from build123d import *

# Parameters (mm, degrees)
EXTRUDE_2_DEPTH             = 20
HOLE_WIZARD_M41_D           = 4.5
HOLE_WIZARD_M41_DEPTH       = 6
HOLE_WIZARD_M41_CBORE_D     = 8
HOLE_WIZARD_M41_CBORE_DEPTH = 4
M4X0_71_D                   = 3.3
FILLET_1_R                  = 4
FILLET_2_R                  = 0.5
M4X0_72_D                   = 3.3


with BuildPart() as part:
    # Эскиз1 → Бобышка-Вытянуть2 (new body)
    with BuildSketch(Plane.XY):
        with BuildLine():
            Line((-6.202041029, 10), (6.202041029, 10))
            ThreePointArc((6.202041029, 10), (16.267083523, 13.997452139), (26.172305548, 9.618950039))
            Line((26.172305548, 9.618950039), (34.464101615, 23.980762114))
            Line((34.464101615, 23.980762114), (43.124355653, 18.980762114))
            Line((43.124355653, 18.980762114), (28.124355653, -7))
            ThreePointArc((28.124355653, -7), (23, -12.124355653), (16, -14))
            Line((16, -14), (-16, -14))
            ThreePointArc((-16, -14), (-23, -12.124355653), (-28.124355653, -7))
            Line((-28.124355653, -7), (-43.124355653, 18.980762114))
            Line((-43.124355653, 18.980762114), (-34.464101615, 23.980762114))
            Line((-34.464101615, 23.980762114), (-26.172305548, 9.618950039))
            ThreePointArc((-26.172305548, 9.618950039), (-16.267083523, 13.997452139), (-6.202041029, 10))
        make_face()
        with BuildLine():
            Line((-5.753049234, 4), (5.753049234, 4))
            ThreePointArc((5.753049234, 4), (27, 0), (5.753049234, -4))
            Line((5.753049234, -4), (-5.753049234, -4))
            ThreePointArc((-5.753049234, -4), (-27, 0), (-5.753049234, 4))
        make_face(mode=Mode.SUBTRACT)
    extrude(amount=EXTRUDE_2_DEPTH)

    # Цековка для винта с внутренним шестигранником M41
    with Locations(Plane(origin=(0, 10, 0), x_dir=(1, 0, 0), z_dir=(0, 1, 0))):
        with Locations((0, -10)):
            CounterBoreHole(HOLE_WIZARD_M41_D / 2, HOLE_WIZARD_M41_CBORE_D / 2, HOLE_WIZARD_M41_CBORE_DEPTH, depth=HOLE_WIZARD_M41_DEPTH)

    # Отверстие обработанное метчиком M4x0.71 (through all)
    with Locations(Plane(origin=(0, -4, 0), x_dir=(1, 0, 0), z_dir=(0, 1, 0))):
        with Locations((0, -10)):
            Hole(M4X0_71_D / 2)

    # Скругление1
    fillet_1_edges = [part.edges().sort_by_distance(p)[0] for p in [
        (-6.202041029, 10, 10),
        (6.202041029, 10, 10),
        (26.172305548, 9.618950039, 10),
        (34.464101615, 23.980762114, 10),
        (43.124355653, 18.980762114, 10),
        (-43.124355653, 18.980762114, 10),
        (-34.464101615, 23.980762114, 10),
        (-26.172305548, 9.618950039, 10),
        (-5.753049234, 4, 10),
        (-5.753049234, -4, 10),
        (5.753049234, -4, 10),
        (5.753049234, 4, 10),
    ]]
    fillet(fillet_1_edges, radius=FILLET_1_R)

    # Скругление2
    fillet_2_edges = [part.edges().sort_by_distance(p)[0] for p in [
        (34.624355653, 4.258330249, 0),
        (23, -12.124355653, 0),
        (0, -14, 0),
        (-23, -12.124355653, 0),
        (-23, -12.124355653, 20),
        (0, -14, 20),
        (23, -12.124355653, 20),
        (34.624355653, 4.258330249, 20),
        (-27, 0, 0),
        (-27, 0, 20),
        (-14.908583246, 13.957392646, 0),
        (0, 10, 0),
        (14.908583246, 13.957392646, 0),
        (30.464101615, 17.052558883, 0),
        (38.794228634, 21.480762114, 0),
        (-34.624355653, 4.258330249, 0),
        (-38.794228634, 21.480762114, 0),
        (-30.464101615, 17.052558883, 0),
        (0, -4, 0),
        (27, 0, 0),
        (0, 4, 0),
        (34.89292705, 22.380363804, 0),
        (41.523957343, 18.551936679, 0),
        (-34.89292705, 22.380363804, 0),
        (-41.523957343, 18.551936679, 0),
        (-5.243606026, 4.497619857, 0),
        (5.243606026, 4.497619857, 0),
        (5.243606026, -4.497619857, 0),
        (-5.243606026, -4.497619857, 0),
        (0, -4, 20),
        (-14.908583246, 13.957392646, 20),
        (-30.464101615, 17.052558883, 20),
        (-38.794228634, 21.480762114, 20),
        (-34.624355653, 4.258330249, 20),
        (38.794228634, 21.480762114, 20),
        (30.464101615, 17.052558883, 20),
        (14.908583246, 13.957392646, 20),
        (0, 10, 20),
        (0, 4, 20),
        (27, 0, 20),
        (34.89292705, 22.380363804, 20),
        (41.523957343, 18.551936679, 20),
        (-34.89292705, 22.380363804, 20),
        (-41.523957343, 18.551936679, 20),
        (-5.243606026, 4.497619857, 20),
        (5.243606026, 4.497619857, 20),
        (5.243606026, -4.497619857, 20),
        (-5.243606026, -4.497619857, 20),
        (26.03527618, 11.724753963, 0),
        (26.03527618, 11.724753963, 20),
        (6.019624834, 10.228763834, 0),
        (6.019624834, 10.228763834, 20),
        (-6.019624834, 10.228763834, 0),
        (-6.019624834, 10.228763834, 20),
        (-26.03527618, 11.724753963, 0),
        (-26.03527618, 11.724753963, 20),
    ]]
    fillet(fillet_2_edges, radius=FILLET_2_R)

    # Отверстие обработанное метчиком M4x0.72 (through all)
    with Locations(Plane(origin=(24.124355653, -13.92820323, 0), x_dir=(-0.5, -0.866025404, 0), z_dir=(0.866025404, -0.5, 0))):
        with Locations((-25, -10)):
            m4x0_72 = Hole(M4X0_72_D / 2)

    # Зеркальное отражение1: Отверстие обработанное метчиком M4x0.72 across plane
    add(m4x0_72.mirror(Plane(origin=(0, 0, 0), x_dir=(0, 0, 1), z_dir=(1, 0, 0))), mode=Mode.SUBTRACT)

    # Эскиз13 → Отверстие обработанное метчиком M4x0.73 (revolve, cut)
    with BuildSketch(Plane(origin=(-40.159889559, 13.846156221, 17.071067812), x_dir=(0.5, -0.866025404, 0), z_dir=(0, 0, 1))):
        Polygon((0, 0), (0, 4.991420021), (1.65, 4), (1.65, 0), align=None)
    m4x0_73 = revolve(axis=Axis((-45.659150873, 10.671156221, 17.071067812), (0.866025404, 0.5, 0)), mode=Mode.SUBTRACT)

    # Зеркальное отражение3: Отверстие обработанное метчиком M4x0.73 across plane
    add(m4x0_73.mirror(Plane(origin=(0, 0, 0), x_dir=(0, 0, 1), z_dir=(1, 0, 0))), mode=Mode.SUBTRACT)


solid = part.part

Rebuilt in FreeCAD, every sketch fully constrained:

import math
import FreeCAD as App
import Part
import Sketcher

V = App.Vector
Q = App.Units.Quantity


def edges_at(feature, points):
    """Names of the edges that pass closest to the given points."""
    edges = feature.Shape.Edges
    near = lambda p: min(range(len(edges)), key=lambda i: edges[i].distToShape(Part.Vertex(*p))[0])
    return sorted({f"Edge{near(p) + 1}" for p in points})

doc = App.newDocument("Part")
params = doc.addObject("Spreadsheet::Sheet", "Params")
for row, (alias, value) in enumerate([
    ("sketch1_radius", "14 mm"),
    ("sketch1_radius2", "11 mm"),
    ("sketch1_width", "32 mm"),
    ("sketch1_length", "10 mm"),
    ("sketch1_length2", "30 mm"),
    ("pad1_length", "20 mm"),
    ("sketch2_diameter", "4.5 mm"),
    ("hole_diameter", "4.5 mm"),
    ("hole_depth", "6 mm"),
    ("hole_cbore_diameter", "8 mm"),
    ("hole_cbore_depth", "4 mm"),
    ("sketch3_diameter", "3.3 mm"),
    ("hole2_diameter", "3.3 mm"),
    ("fillet_radius", "4 mm"),
    ("fillet2_radius", "0.5 mm"),
    ("sketch4_diameter", "3.3 mm"),
    ("hole3_diameter", "3.3 mm"),
    ("sketch5_length", "4 mm"),
    ("sketch5_length2", "1.65 mm"),
    ("groove_angle", "360 deg"),
], start=1):
    params.set(f"A{row}", alias)
    params.set(f"B{row}", "=" + value)
    params.setAlias(f"B{row}", alias)

body = doc.addObject("PartDesign::Body", "Body")

# Sketch on XY plane
sketch1 = body.newObject("Sketcher::SketchObject", "Sketch")
sketch1.AttachmentSupport = (doc.getObject("XY_Plane"), [""])
sketch1.MapMode = "FlatFace"
sketch1.addGeometry([
    Part.LineSegment(V(6, 10, 0), V(-6, 10, 0)),  # 0
    Part.ArcOfCircle(Part.Circle(V(-16, 0, 0), V(0, 0, 1), 14), math.radians(46), math.radians(137)),  # 1
    Part.LineSegment(V(-26, 10, 0), V(-34, 24, 0)),  # 2
    Part.LineSegment(V(-34, 24, 0), V(-43, 19, 0)),  # 3
    Part.LineSegment(V(-43, 19, 0), V(-28, -7, 0)),  # 4
    Part.ArcOfCircle(Part.Circle(V(-16, 0, 0), V(0, 0, 1), 14), math.radians(-150), math.radians(-90)),  # 5
    Part.LineSegment(V(-16, -14, 0), V(16, -14, 0)),  # 6
    Part.ArcOfCircle(Part.Circle(V(16, 0, 0), V(0, 0, 1), 14), math.radians(-90), math.radians(-30)),  # 7
    Part.LineSegment(V(28, -7, 0), V(43, 19, 0)),  # 8
    Part.LineSegment(V(43, 19, 0), V(34, 24, 0)),  # 9
    Part.LineSegment(V(34, 24, 0), V(26, 10, 0)),  # 10
    Part.ArcOfCircle(Part.Circle(V(16, 0, 0), V(0, 0, 1), 14), math.radians(43), math.radians(134)),  # 11
    Part.LineSegment(V(-6, 4, 0), V(6, 4, 0)),  # 12
    Part.ArcOfCircle(Part.Circle(V(16, 0, 0), V(0, 0, 1), 11), math.radians(-159), math.radians(159)),  # 13
    Part.LineSegment(V(6, -4, 0), V(-6, -4, 0)),  # 14
    Part.ArcOfCircle(Part.Circle(V(-16, 0, 0), V(0, 0, 1), 11), math.radians(21), math.radians(339)),  # 15
], False)
sketch1.addConstraint([
    Sketcher.Constraint("Coincident", 0, 2, 1, 1),
    Sketcher.Constraint("Coincident", 1, 2, 2, 1),
    Sketcher.Constraint("Coincident", 2, 2, 3, 1),
    Sketcher.Constraint("Coincident", 3, 2, 4, 1),
    Sketcher.Constraint("Tangent", 4, 2, 5, 1),
    Sketcher.Constraint("Tangent", 5, 2, 6, 1),
    Sketcher.Constraint("Tangent", 6, 2, 7, 1),
    Sketcher.Constraint("Tangent", 7, 2, 8, 1),
    Sketcher.Constraint("Coincident", 8, 2, 9, 1),
    Sketcher.Constraint("Coincident", 9, 2, 10, 1),
    Sketcher.Constraint("Coincident", 10, 2, 11, 1),
    Sketcher.Constraint("Coincident", 11, 2, 0, 1),
    Sketcher.Constraint("Coincident", 12, 2, 13, 2),
    Sketcher.Constraint("Coincident", 13, 1, 14, 1),
    Sketcher.Constraint("Coincident", 14, 2, 15, 2),
    Sketcher.Constraint("Coincident", 15, 1, 12, 1),
    Sketcher.Constraint("Horizontal", 0),
    Sketcher.Constraint("Horizontal", 6),
    Sketcher.Constraint("Horizontal", 12),
    Sketcher.Constraint("Horizontal", 14),
    Sketcher.Constraint("Coincident", 5, 3, 1, 3),
    Sketcher.Constraint("Coincident", 11, 3, 7, 3),
    Sketcher.Constraint("Coincident", 13, 3, 7, 3),
    Sketcher.Constraint("Coincident", 15, 3, 1, 3),
    Sketcher.Constraint("Equal", 1, 5),
    Sketcher.Constraint("Equal", 5, 7),
    Sketcher.Constraint("Equal", 7, 11),
    Sketcher.Constraint("Equal", 13, 15),
    Sketcher.Constraint("Symmetric", 1, 3, 7, 3, -1, 1),
    Sketcher.Constraint("Symmetric", 3, 2, 8, 2, -2),
    Sketcher.Constraint("Symmetric", 2, 2, 9, 2, -2),
    Sketcher.Constraint("Perpendicular", 2, 3),
    Sketcher.Constraint("Perpendicular", 3, 4),
    Sketcher.Constraint("Perpendicular", 9, 10),
    Sketcher.Constraint("Vertical", 12, 2, 13, 1),
    Sketcher.Constraint("Radius", 1, 14.0),
    Sketcher.Constraint("Radius", 13, 11.0),
    Sketcher.Constraint("DistanceX", 6, 1, 6, 2, 32.0),
    Sketcher.Constraint("Angle", 2, Q("120 deg")),
    Sketcher.Constraint("Distance", 3, 10.0),
    Sketcher.Constraint("Distance", 4, 30.0),
    Sketcher.Constraint("DistanceY", -1, 1, 0, 2, 10.0),
    Sketcher.Constraint("DistanceY", -1, 1, 12, 2, 4.0),
])
sketch1.setExpression("Constraints[35]", "Params.sketch1_radius")
sketch1.setExpression("Constraints[36]", "Params.sketch1_radius2")
sketch1.setExpression("Constraints[37]", "Params.sketch1_width")
sketch1.setExpression("Constraints[39]", "Params.sketch1_length")
sketch1.setExpression("Constraints[40]", "Params.sketch1_length2")
pad1 = body.newObject("PartDesign::Pad", "Pad")
pad1.Profile = sketch1
pad1.setExpression("Length", "Params.pad1_length")

# Sketch on XZ plane
sketch2 = body.newObject("Sketcher::SketchObject", "Sketch001")
sketch2.AttachmentSupport = (doc.getObject("XZ_Plane"), [""])
sketch2.MapMode = "FlatFace"
sketch2.AttachmentOffset = App.Placement(V(0, 0, -10), App.Rotation())
sketch2.addGeometry(Part.Circle(V(0, 10, 0), V(0, 0, 1), 2.2), False)
sketch2.addConstraint([
    Sketcher.Constraint("PointOnObject", 0, 3, -2),
    Sketcher.Constraint("Diameter", 0, 4.5),
    Sketcher.Constraint("DistanceY", -1, 1, 0, 3, 10.0),
])
sketch2.setExpression("Constraints[1]", "Params.sketch2_diameter")
doc.recompute()
hole = body.newObject("PartDesign::Hole", "Hole")
hole.Profile = sketch2
hole.ThreadType = "None"
hole.setExpression("Diameter", "Params.hole_diameter")
hole.DepthType = "Dimension"
hole.setExpression("Depth", "Params.hole_depth")
hole.DrillPoint = "Flat"
hole.HoleCutType = "Counterbore"
hole.setExpression("HoleCutDiameter", "Params.hole_cbore_diameter")
hole.setExpression("HoleCutDepth", "Params.hole_cbore_depth")
hole.Reversed = True

# Sketch on XZ plane
sketch3 = body.newObject("Sketcher::SketchObject", "Sketch002")
sketch3.AttachmentSupport = (doc.getObject("XZ_Plane"), [""])
sketch3.MapMode = "FlatFace"
sketch3.AttachmentOffset = App.Placement(V(0, 0, 4), App.Rotation())
sketch3.addGeometry(Part.Circle(V(0, 10, 0), V(0, 0, 1), 1.6), False)
sketch3.addConstraint([
    Sketcher.Constraint("PointOnObject", 0, 3, -2),
    Sketcher.Constraint("Diameter", 0, 3.3),
    Sketcher.Constraint("DistanceY", -1, 1, 0, 3, 10.0),
])
sketch3.setExpression("Constraints[1]", "Params.sketch3_diameter")
doc.recompute()
hole2 = body.newObject("PartDesign::Hole", "Hole001")
hole2.Profile = sketch3
hole2.ThreadType = "None"
hole2.setExpression("Diameter", "Params.hole2_diameter")
hole2.DepthType = "ThroughAll"
hole2.Reversed = True
doc.recompute()

fillet = body.newObject("PartDesign::Fillet", "Fillet")
fillet.Base = (hole2, edges_at(hole2, [
    (-6.202, 10, 10),
    (6.202, 10, 10),
    (26.172, 9.619, 10),
    (34.464, 23.981, 10),
    (43.124, 18.981, 10),
    (-43.124, 18.981, 10),
    (-34.464, 23.981, 10),
    (-26.172, 9.619, 10),
    (-5.753, 4, 10),
    (-5.753, -4, 10),
    (5.753, -4, 10),
    (5.753, 4, 10),
]))
fillet.setExpression("Radius", "Params.fillet_radius")
doc.recompute()

fillet2 = body.newObject("PartDesign::Fillet", "Fillet001")
fillet2.Base = (fillet, edges_at(fillet, [
    (34.624, 4.258, 0),
    (23, -12.124, 0),
    (0, -14, 0),
    (-23, -12.124, 0),
    (-23, -12.124, 20),
    (0, -14, 20),
    (23, -12.124, 20),
    (34.624, 4.258, 20),
    (-27, 0, 0),
    (-27, 0, 20),
    (-14.909, 13.957, 0),
    (0, 10, 0),
    (14.909, 13.957, 0),
    (30.464, 17.053, 0),
    (38.794, 21.481, 0),
    (-34.624, 4.258, 0),
    (-38.794, 21.481, 0),
    (-30.464, 17.053, 0),
    (0, -4, 0),
    (27, 0, 0),
    (0, 4, 0),
    (34.893, 22.38, 0),
    (41.524, 18.552, 0),
    (-34.893, 22.38, 0),
    (-41.524, 18.552, 0),
    (-5.244, 4.498, 0),
    (5.244, 4.498, 0),
    (5.244, -4.498, 0),
    (-5.244, -4.498, 0),
    (0, -4, 20),
    (-14.909, 13.957, 20),
    (-30.464, 17.053, 20),
    (-38.794, 21.481, 20),
    (-34.624, 4.258, 20),
    (38.794, 21.481, 20),
    (30.464, 17.053, 20),
    (14.909, 13.957, 20),
    (0, 10, 20),
    (0, 4, 20),
    (27, 0, 20),
    (34.893, 22.38, 20),
    (41.524, 18.552, 20),
    (-34.893, 22.38, 20),
    (-41.524, 18.552, 20),
    (-5.244, 4.498, 20),
    (5.244, 4.498, 20),
    (5.244, -4.498, 20),
    (-5.244, -4.498, 20),
    (26.035, 11.725, 0),
    (26.035, 11.725, 20),
    (6.02, 10.229, 0),
    (6.02, 10.229, 20),
    (-6.02, 10.229, 0),
    (-6.02, 10.229, 20),
    (-26.035, 11.725, 0),
    (-26.035, 11.725, 20),
]))
fillet2.setExpression("Radius", "Params.fillet2_radius")

# Sketch on an angled plane
sketch4 = body.newObject("Sketcher::SketchObject", "Sketch003")
sketch4.Placement = App.Placement(V(24.124356, -13.928203, 0), App.Rotation(V(-0.5, -0.866025404, 0), V(0, 0, -1), V(0.866025404, -0.5, 0), "ZXY"))
sketch4.addGeometry(Part.Circle(V(-25, -10, 0), V(0, 0, 1), 1.6), False)
sketch4.addConstraint([
    Sketcher.Constraint("Diameter", 0, 3.3),
    Sketcher.Constraint("DistanceX", 0, 3, -1, 1, 25.0),
    Sketcher.Constraint("DistanceY", 0, 3, -1, 1, 10.0),
])
sketch4.setExpression("Constraints[0]", "Params.sketch4_diameter")
doc.recompute()
hole3 = body.newObject("PartDesign::Hole", "Hole002")
hole3.Profile = sketch4
hole3.ThreadType = "None"
hole3.setExpression("Diameter", "Params.hole3_diameter")
hole3.DepthType = "ThroughAll"
doc.recompute()

mirrored = body.newObject("PartDesign::Mirrored", "Mirrored")
mirrored.Originals = [hole3]
mirrored.MirrorPlane = (doc.getObject("YZ_Plane"), [""])
body.Tip = mirrored

# Sketch on XY plane
sketch5 = body.newObject("Sketcher::SketchObject", "Sketch004")
sketch5.AttachmentSupport = (doc.getObject("XY_Plane"), [""])
sketch5.MapMode = "FlatFace"
sketch5.AttachmentOffset = App.Placement(V(0, 0, 17.071068), App.Rotation())
sketch5.addGeometry([
    Part.LineSegment(V(-35.8, 16.3, 0), V(-40.2, 13.8, 0)),
    Part.LineSegment(V(-40.2, 13.8, 0), V(-39.3, 12.4, 0)),
    Part.LineSegment(V(-39.3, 12.4, 0), V(-35.9, 14.4, 0)),
    Part.LineSegment(V(-35.9, 14.4, 0), V(-35.8, 16.3, 0)),
], False)
sketch5.addGeometry(Part.LineSegment(V(-40.2, 13.8, 0), V(-35.8, 16.3, 0)), True)  # axis
sketch5.addConstraint([
    Sketcher.Constraint("Coincident", 0, 2, 1, 1),
    Sketcher.Constraint("Coincident", 1, 2, 2, 1),
    Sketcher.Constraint("Coincident", 2, 2, 3, 1),
    Sketcher.Constraint("Coincident", 3, 2, 0, 1),
    Sketcher.Constraint("Coincident", 4, 1, 0, 2),
    Sketcher.Constraint("Coincident", 4, 2, 3, 2),
    Sketcher.Constraint("Perpendicular", 0, 1),
    Sketcher.Constraint("Perpendicular", 1, 2),
    Sketcher.Constraint("Angle", 0, Q("-150 deg")),
    Sketcher.Constraint("Angle", 3, Q("89 deg")),
    Sketcher.Constraint("Distance", 2, 4.0),
    Sketcher.Constraint("Distance", 1, 1.65),
    Sketcher.Constraint("DistanceX", 0, 2, -1, 1, 40.15989),
    Sketcher.Constraint("DistanceY", -1, 1, 0, 2, 13.846156),
])
sketch5.setExpression("Constraints[10]", "Params.sketch5_length")
sketch5.setExpression("Constraints[11]", "Params.sketch5_length2")
groove = body.newObject("PartDesign::Groove", "Groove")
groove.Profile = sketch5
groove.ReferenceAxis = (sketch5, ["Axis0"])
groove.setExpression("Angle", "Params.groove_angle")
doc.recompute()

mirrored2 = body.newObject("PartDesign::Mirrored", "Mirrored001")
mirrored2.Originals = [groove]
mirrored2.MirrorPlane = (doc.getObject("YZ_Plane"), [""])
body.Tip = mirrored2

doc.recompute()
